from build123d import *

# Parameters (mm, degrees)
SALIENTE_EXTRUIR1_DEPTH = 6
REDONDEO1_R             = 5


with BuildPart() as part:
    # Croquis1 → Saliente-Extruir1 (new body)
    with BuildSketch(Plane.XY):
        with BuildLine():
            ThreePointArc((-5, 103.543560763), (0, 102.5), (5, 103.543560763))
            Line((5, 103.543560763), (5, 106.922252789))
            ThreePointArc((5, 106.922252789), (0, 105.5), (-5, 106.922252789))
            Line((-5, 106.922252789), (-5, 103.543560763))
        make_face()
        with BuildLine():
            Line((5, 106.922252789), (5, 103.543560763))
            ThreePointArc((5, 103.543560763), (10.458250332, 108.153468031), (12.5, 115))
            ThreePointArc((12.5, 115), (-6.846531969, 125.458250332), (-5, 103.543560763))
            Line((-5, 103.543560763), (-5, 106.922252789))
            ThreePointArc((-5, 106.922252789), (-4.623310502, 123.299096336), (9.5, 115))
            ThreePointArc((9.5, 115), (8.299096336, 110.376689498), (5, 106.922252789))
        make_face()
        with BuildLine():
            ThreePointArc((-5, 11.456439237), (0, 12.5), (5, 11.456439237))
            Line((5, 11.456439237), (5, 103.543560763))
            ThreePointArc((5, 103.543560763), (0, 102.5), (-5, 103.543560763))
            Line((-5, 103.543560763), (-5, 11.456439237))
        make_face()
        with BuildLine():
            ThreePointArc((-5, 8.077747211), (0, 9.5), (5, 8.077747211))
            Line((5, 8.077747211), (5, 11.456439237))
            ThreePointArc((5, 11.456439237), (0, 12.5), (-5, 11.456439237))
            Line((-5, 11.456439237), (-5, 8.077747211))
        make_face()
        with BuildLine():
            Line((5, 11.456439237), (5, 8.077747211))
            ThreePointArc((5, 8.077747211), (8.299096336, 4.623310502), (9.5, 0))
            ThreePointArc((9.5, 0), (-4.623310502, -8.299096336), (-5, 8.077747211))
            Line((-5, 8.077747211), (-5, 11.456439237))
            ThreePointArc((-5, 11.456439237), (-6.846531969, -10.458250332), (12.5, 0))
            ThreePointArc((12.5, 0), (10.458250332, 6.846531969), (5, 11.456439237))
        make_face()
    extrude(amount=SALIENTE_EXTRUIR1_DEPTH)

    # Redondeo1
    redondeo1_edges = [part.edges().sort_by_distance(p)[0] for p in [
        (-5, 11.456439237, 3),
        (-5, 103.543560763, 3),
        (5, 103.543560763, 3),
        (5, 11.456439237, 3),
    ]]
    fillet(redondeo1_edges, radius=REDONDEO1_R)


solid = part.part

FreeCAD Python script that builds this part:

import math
import FreeCAD as App
import Part
import Sketcher

V = App.Vector
Q = App.Units.Quantity


def edges_at(feature, points):
    """Names of the edges that pass closest to the given points."""
    edges = feature.Shape.Edges
    near = lambda p: min(range(len(edges)), key=lambda i: edges[i].distToShape(Part.Vertex(*p))[0])
    return sorted({f"Edge{near(p) + 1}" for p in points})

doc = App.newDocument("Part")
params = doc.addObject("Spreadsheet::Sheet", "Params")
for row, (alias, value) in enumerate([
    ("sketch1_radius", "12.5 mm"),
    ("sketch1_radius2", "9.5 mm"),
    ("pad1_length", "6 mm"),
    ("fillet_radius", "5 mm"),
], start=1):
    params.set(f"A{row}", alias)
    params.set(f"B{row}", "=" + value)
    params.setAlias(f"B{row}", alias)

body = doc.addObject("PartDesign::Body", "Body")

# Sketch on XY plane
sketch1 = doc.addObject("Sketcher::SketchObject", "Sketch")
body.addObject(sketch1)
sketch1.AttachmentSupport = (doc.XY_Plane, [""])
sketch1.MapMode = "FlatFace"
sketch1.addGeometry(Part.LineSegment(V(-5, 104, 0), V(-5, 11, 0)), False)
sketch1.addGeometry(Part.ArcOfCircle(Part.Circle(V(0, 0, 0), V(0, 0, 1), 12), math.radians(114), math.radians(360)), False)
sketch1.addGeometry(Part.ArcOfCircle(Part.Circle(V(0, 0, 0), V(0, 0, 1), 12), math.radians(0), math.radians(66)), False)
sketch1.addGeometry(Part.LineSegment(V(5, 11, 0), V(5, 104, 0)), False)
sketch1.addGeometry(Part.ArcOfCircle(Part.Circle(V(0, 115, 0), V(0, 0, 1), 12), math.radians(-66), math.radians(0)), False)
sketch1.addGeometry(Part.ArcOfCircle(Part.Circle(V(0, 115, 0), V(0, 0, 1), 12), math.radians(0), math.radians(246)), False)
sketch1.addGeometry(Part.ArcOfCircle(Part.Circle(V(0, 0, 0), V(0, 0, 1), 10), math.radians(58), math.radians(122)), False)
sketch1.addGeometry(Part.ArcOfCircle(Part.Circle(V(0, 0, 0), V(0, 0, 1), 10), math.radians(0), math.radians(58)), False)
sketch1.addGeometry(Part.ArcOfCircle(Part.Circle(V(0, 0, 0), V(0, 0, 1), 10), math.radians(122), math.radians(360)), False)
sketch1.addGeometry(Part.ArcOfCircle(Part.Circle(V(0, 115, 0), V(0, 0, 1), 10), math.radians(-122), math.radians(-58)), False)
sketch1.addGeometry(Part.ArcOfCircle(Part.Circle(V(0, 115, 0), V(0, 0, 1), 10), math.radians(0), math.radians(238)), False)
sketch1.addGeometry(Part.ArcOfCircle(Part.Circle(V(0, 115, 0), V(0, 0, 1), 10), math.radians(-58), math.radians(0)), False)
sketch1.addConstraint(Sketcher.Constraint("Coincident", 0, 2, 1, 1))
sketch1.addConstraint(Sketcher.Constraint("Tangent", 1, 2, 2, 1))
sketch1.addConstraint(Sketcher.Constraint("Coincident", 2, 2, 3, 1))
sketch1.addConstraint(Sketcher.Constraint("Coincident", 3, 2, 4, 1))
sketch1.addConstraint(Sketcher.Constraint("Tangent", 4, 2, 5, 1))
sketch1.addConstraint(Sketcher.Constraint("Coincident", 5, 2, 0, 1))
sketch1.addConstraint(Sketcher.Constraint("Tangent", 6, 1, 7, 2))
sketch1.addConstraint(Sketcher.Constraint("Tangent", 7, 1, 8, 2))
sketch1.addConstraint(Sketcher.Constraint("Tangent", 8, 1, 6, 2))
sketch1.addConstraint(Sketcher.Constraint("Tangent", 9, 1, 10, 2))
sketch1.addConstraint(Sketcher.Constraint("Tangent", 10, 1, 11, 2))
sketch1.addConstraint(Sketcher.Constraint("Tangent", 11, 1, 9, 2))
sketch1.addConstraint(Sketcher.Constraint("Vertical", 0))
sketch1.addConstraint(Sketcher.Constraint("Vertical", 3))
sketch1.addConstraint(Sketcher.Constraint("Coincident", 1, 3, -1, 1))
sketch1.addConstraint(Sketcher.Constraint("Coincident", 6, 3, -1, 1))
sketch1.addConstraint(Sketcher.Constraint("Coincident", 9, 3, 4, 3))
sketch1.addConstraint(Sketcher.Constraint("Equal", 1, 2))
sketch1.addConstraint(Sketcher.Constraint("Equal", 2, 4))
sketch1.addConstraint(Sketcher.Constraint("Equal", 4, 5))
sketch1.addConstraint(Sketcher.Constraint("Equal", 8, 9))
sketch1.addConstraint(Sketcher.Constraint("Symmetric", 3, 2, 5, 2, -2))
sketch1.addConstraint(Sketcher.Constraint("PointOnObject", 1, 2, -1))
sketch1.addConstraint(Sketcher.Constraint("PointOnObject", 7, 1, -1))
sketch1.addConstraint(Sketcher.Constraint("Horizontal", 11, 3, 4, 2))
sketch1.addConstraint(Sketcher.Constraint("Horizontal", 6, 1, 8, 1))
sketch1.addConstraint(Sketcher.Constraint("Horizontal", 4, 2, 10, 1))
sketch1.addConstraint(Sketcher.Constraint("Horizontal", 9, 1, 11, 1))
sketch1.addConstraint(Sketcher.Constraint("Vertical", 3, 2, 6, 1))
sketch1.addConstraint(Sketcher.Constraint("Vertical", 8, 1, 9, 1))
sketch1.addConstraint(Sketcher.Constraint("Radius", 1, Q("12.5 mm")))
sketch1.addConstraint(Sketcher.Constraint("Radius", 6, Q("9.5 mm")))
sketch1.addConstraint(Sketcher.Constraint("DistanceY", -1, 1, 4, 3, Q("115 mm")))
sketch1.addConstraint(Sketcher.Constraint("DistanceX", 0, 2, -1, 1, Q("5 mm")))
sketch1.setExpression("Constraints[30]", "Params.sketch1_radius")
sketch1.setExpression("Constraints[31]", "Params.sketch1_radius2")
pad1 = doc.addObject("PartDesign::Pad", "Pad")
body.addObject(pad1)
pad1.Profile = sketch1
pad1.setExpression("Length", "Params.pad1_length")
doc.recompute()

fillet = doc.addObject("PartDesign::Fillet", "Fillet")
body.addObject(fillet)
fillet.Base = (pad1, edges_at(pad1, [
    (-5, 11.456, 3),
    (-5, 103.544, 3),
    (5, 103.544, 3),
    (5, 11.456, 3),
]))
fillet.setExpression("Radius", "Params.fillet_radius")

doc.recompute()
